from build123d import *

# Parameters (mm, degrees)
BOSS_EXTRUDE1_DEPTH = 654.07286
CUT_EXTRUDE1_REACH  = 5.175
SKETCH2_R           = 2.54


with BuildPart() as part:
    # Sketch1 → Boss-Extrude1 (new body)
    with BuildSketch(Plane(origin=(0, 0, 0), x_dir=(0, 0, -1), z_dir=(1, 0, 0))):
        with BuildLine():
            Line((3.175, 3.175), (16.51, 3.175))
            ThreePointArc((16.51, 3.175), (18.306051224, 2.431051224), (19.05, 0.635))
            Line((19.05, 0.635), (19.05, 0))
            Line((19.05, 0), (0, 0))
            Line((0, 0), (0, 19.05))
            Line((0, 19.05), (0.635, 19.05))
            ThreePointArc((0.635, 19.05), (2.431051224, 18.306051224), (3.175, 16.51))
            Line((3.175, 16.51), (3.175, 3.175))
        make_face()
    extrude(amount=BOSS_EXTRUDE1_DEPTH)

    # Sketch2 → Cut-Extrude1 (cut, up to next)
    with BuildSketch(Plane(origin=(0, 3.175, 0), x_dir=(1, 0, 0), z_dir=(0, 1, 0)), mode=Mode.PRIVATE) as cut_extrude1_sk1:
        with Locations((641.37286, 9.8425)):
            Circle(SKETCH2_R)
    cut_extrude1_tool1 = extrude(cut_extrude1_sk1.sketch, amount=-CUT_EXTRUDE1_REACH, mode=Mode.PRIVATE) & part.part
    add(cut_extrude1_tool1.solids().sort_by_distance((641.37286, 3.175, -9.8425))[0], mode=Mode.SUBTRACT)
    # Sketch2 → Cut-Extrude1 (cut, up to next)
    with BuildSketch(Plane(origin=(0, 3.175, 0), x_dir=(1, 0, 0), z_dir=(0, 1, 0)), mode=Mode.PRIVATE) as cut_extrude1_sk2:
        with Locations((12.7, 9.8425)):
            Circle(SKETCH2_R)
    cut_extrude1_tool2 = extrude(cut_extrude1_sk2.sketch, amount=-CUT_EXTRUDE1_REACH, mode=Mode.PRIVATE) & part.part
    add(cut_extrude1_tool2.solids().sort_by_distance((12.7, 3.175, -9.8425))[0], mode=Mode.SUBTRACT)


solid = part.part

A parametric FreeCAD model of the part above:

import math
import FreeCAD as App
import Part
import Sketcher
Q = App.Units.Quantity

doc = App.newDocument("Part")
body = doc.addObject("PartDesign::Body", "Body")

# Sketch on YZ plane
sketch1 = body.newObject("Sketcher::SketchObject", "Sketch")
sketch1.AttachmentSupport = (doc.getObject("YZ_Plane"), [""])
sketch1.MapMode = "FlatFace"
sketch1.addGeometry(Part.LineSegment(App.Vector(3.175, -16.51, 0), App.Vector(3.175, -3.175, 0)), False)
sketch1.addGeometry(Part.LineSegment(App.Vector(3.175, -3.175, 0), App.Vector(16.51, -3.175, 0)), False)
sketch1.addGeometry(Part.ArcOfCircle(Part.Circle(App.Vector(16.51, -0.635, 0), App.Vector(0, 0, 1), 2.54), math.radians(-90), math.radians(0)), False)
sketch1.addGeometry(Part.LineSegment(App.Vector(19.05, -0.635, 0), App.Vector(19.05, 0, 0)), False)
sketch1.addGeometry(Part.LineSegment(App.Vector(19.05, 0, 0), App.Vector(0, 0, 0)), False)
sketch1.addGeometry(Part.LineSegment(App.Vector(0, 0, 0), App.Vector(0, -19.05, 0)), False)
sketch1.addGeometry(Part.LineSegment(App.Vector(0, -19.05, 0), App.Vector(0.635, -19.05, 0)), False)
sketch1.addGeometry(Part.ArcOfCircle(Part.Circle(App.Vector(0.635, -16.51, 0), App.Vector(0, 0, 1), 2.54), math.radians(-90), math.radians(0)), False)
sketch1.addConstraint(Sketcher.Constraint("Coincident", 0, 2, 1, 1))
sketch1.addConstraint(Sketcher.Constraint("Tangent", 1, 2, 2, 1))
sketch1.addConstraint(Sketcher.Constraint("Tangent", 2, 2, 3, 1))
sketch1.addConstraint(Sketcher.Constraint("Coincident", 3, 2, 4, 1))
sketch1.addConstraint(Sketcher.Constraint("Coincident", 4, 2, 5, 1))
sketch1.addConstraint(Sketcher.Constraint("Coincident", 5, 2, 6, 1))
sketch1.addConstraint(Sketcher.Constraint("Tangent", 6, 2, 7, 1))
sketch1.addConstraint(Sketcher.Constraint("Tangent", 7, 2, 0, 1))
sketch1.addConstraint(Sketcher.Constraint("Vertical", 0))
sketch1.addConstraint(Sketcher.Constraint("Horizontal", 1))
sketch1.addConstraint(Sketcher.Constraint("Vertical", 3))
sketch1.addConstraint(Sketcher.Constraint("Horizontal", 4))
sketch1.addConstraint(Sketcher.Constraint("Vertical", 5))
sketch1.addConstraint(Sketcher.Constraint("Horizontal", 6))
sketch1.addConstraint(Sketcher.Constraint("Coincident", 4, 2, -1, 1))
sketch1.addConstraint(Sketcher.Constraint("Equal", 2, 7))
sketch1.addConstraint(Sketcher.Constraint("Equal", 1, 0))
sketch1.addConstraint(Sketcher.Constraint("Equal", 6, 3))
sketch1.addConstraint(Sketcher.Constraint("Radius", 2, Q("0.1 in")))
sketch1.addConstraint(Sketcher.Constraint("DistanceX", 4, 2, 4, 1, Q("0.75 in")))
sketch1.addConstraint(Sketcher.Constraint("DistanceX", 1, 1, 1, 2, Q("0.525 in")))
pad1 = body.newObject("PartDesign::Pad", "Pad")
pad1.Profile = sketch1
pad1.Length = Q("25.7509 in")

# Sketch on XZ plane
sketch2 = body.newObject("Sketcher::SketchObject", "Sketch001")
sketch2.AttachmentSupport = (doc.getObject("XZ_Plane"), [""])
sketch2.MapMode = "FlatFace"
sketch2.AttachmentOffset = App.Placement(App.Vector(0, 0, -0.125 * 25.4), App.Rotation())
sketch2.addGeometry(Part.Circle(App.Vector(641.37286, -9.8425, 0), App.Vector(0, 0, 1), 2.54), False)
sketch2.addConstraint(Sketcher.Constraint("Diameter", 0, Q("0.2 in")))
sketch2.addConstraint(Sketcher.Constraint("DistanceX", -1, 1, 0, 3, Q("25.2509 in")))
sketch2.addConstraint(Sketcher.Constraint("DistanceY", 0, 3, -1, 1, Q("0.3875 in")))
pocket1 = body.newObject("PartDesign::Pocket", "Pocket")
pocket1.Profile = sketch2
pocket1.Type = "UpToFirst"
pocket1.Reversed = True

# Sketch on XZ plane
sketch3 = body.newObject("Sketcher::SketchObject", "Sketch002")
sketch3.AttachmentSupport = (doc.getObject("XZ_Plane"), [""])
sketch3.MapMode = "FlatFace"
sketch3.AttachmentOffset = App.Placement(App.Vector(0, 0, -0.125 * 25.4), App.Rotation())
sketch3.addGeometry(Part.Circle(App.Vector(12.7, -9.8425, 0), App.Vector(0, 0, 1), 2.54), False)
sketch3.addConstraint(Sketcher.Constraint("Diameter", 0, Q("0.2 in")))
sketch3.addConstraint(Sketcher.Constraint("DistanceX", -1, 1, 0, 3, Q("0.5 in")))
sketch3.addConstraint(Sketcher.Constraint("DistanceY", 0, 3, -1, 1, Q("0.3875 in")))
pocket2 = body.newObject("PartDesign::Pocket", "Pocket001")
pocket2.Profile = sketch3
pocket2.Type = "UpToFirst"
pocket2.Reversed = True

doc.recompute()
